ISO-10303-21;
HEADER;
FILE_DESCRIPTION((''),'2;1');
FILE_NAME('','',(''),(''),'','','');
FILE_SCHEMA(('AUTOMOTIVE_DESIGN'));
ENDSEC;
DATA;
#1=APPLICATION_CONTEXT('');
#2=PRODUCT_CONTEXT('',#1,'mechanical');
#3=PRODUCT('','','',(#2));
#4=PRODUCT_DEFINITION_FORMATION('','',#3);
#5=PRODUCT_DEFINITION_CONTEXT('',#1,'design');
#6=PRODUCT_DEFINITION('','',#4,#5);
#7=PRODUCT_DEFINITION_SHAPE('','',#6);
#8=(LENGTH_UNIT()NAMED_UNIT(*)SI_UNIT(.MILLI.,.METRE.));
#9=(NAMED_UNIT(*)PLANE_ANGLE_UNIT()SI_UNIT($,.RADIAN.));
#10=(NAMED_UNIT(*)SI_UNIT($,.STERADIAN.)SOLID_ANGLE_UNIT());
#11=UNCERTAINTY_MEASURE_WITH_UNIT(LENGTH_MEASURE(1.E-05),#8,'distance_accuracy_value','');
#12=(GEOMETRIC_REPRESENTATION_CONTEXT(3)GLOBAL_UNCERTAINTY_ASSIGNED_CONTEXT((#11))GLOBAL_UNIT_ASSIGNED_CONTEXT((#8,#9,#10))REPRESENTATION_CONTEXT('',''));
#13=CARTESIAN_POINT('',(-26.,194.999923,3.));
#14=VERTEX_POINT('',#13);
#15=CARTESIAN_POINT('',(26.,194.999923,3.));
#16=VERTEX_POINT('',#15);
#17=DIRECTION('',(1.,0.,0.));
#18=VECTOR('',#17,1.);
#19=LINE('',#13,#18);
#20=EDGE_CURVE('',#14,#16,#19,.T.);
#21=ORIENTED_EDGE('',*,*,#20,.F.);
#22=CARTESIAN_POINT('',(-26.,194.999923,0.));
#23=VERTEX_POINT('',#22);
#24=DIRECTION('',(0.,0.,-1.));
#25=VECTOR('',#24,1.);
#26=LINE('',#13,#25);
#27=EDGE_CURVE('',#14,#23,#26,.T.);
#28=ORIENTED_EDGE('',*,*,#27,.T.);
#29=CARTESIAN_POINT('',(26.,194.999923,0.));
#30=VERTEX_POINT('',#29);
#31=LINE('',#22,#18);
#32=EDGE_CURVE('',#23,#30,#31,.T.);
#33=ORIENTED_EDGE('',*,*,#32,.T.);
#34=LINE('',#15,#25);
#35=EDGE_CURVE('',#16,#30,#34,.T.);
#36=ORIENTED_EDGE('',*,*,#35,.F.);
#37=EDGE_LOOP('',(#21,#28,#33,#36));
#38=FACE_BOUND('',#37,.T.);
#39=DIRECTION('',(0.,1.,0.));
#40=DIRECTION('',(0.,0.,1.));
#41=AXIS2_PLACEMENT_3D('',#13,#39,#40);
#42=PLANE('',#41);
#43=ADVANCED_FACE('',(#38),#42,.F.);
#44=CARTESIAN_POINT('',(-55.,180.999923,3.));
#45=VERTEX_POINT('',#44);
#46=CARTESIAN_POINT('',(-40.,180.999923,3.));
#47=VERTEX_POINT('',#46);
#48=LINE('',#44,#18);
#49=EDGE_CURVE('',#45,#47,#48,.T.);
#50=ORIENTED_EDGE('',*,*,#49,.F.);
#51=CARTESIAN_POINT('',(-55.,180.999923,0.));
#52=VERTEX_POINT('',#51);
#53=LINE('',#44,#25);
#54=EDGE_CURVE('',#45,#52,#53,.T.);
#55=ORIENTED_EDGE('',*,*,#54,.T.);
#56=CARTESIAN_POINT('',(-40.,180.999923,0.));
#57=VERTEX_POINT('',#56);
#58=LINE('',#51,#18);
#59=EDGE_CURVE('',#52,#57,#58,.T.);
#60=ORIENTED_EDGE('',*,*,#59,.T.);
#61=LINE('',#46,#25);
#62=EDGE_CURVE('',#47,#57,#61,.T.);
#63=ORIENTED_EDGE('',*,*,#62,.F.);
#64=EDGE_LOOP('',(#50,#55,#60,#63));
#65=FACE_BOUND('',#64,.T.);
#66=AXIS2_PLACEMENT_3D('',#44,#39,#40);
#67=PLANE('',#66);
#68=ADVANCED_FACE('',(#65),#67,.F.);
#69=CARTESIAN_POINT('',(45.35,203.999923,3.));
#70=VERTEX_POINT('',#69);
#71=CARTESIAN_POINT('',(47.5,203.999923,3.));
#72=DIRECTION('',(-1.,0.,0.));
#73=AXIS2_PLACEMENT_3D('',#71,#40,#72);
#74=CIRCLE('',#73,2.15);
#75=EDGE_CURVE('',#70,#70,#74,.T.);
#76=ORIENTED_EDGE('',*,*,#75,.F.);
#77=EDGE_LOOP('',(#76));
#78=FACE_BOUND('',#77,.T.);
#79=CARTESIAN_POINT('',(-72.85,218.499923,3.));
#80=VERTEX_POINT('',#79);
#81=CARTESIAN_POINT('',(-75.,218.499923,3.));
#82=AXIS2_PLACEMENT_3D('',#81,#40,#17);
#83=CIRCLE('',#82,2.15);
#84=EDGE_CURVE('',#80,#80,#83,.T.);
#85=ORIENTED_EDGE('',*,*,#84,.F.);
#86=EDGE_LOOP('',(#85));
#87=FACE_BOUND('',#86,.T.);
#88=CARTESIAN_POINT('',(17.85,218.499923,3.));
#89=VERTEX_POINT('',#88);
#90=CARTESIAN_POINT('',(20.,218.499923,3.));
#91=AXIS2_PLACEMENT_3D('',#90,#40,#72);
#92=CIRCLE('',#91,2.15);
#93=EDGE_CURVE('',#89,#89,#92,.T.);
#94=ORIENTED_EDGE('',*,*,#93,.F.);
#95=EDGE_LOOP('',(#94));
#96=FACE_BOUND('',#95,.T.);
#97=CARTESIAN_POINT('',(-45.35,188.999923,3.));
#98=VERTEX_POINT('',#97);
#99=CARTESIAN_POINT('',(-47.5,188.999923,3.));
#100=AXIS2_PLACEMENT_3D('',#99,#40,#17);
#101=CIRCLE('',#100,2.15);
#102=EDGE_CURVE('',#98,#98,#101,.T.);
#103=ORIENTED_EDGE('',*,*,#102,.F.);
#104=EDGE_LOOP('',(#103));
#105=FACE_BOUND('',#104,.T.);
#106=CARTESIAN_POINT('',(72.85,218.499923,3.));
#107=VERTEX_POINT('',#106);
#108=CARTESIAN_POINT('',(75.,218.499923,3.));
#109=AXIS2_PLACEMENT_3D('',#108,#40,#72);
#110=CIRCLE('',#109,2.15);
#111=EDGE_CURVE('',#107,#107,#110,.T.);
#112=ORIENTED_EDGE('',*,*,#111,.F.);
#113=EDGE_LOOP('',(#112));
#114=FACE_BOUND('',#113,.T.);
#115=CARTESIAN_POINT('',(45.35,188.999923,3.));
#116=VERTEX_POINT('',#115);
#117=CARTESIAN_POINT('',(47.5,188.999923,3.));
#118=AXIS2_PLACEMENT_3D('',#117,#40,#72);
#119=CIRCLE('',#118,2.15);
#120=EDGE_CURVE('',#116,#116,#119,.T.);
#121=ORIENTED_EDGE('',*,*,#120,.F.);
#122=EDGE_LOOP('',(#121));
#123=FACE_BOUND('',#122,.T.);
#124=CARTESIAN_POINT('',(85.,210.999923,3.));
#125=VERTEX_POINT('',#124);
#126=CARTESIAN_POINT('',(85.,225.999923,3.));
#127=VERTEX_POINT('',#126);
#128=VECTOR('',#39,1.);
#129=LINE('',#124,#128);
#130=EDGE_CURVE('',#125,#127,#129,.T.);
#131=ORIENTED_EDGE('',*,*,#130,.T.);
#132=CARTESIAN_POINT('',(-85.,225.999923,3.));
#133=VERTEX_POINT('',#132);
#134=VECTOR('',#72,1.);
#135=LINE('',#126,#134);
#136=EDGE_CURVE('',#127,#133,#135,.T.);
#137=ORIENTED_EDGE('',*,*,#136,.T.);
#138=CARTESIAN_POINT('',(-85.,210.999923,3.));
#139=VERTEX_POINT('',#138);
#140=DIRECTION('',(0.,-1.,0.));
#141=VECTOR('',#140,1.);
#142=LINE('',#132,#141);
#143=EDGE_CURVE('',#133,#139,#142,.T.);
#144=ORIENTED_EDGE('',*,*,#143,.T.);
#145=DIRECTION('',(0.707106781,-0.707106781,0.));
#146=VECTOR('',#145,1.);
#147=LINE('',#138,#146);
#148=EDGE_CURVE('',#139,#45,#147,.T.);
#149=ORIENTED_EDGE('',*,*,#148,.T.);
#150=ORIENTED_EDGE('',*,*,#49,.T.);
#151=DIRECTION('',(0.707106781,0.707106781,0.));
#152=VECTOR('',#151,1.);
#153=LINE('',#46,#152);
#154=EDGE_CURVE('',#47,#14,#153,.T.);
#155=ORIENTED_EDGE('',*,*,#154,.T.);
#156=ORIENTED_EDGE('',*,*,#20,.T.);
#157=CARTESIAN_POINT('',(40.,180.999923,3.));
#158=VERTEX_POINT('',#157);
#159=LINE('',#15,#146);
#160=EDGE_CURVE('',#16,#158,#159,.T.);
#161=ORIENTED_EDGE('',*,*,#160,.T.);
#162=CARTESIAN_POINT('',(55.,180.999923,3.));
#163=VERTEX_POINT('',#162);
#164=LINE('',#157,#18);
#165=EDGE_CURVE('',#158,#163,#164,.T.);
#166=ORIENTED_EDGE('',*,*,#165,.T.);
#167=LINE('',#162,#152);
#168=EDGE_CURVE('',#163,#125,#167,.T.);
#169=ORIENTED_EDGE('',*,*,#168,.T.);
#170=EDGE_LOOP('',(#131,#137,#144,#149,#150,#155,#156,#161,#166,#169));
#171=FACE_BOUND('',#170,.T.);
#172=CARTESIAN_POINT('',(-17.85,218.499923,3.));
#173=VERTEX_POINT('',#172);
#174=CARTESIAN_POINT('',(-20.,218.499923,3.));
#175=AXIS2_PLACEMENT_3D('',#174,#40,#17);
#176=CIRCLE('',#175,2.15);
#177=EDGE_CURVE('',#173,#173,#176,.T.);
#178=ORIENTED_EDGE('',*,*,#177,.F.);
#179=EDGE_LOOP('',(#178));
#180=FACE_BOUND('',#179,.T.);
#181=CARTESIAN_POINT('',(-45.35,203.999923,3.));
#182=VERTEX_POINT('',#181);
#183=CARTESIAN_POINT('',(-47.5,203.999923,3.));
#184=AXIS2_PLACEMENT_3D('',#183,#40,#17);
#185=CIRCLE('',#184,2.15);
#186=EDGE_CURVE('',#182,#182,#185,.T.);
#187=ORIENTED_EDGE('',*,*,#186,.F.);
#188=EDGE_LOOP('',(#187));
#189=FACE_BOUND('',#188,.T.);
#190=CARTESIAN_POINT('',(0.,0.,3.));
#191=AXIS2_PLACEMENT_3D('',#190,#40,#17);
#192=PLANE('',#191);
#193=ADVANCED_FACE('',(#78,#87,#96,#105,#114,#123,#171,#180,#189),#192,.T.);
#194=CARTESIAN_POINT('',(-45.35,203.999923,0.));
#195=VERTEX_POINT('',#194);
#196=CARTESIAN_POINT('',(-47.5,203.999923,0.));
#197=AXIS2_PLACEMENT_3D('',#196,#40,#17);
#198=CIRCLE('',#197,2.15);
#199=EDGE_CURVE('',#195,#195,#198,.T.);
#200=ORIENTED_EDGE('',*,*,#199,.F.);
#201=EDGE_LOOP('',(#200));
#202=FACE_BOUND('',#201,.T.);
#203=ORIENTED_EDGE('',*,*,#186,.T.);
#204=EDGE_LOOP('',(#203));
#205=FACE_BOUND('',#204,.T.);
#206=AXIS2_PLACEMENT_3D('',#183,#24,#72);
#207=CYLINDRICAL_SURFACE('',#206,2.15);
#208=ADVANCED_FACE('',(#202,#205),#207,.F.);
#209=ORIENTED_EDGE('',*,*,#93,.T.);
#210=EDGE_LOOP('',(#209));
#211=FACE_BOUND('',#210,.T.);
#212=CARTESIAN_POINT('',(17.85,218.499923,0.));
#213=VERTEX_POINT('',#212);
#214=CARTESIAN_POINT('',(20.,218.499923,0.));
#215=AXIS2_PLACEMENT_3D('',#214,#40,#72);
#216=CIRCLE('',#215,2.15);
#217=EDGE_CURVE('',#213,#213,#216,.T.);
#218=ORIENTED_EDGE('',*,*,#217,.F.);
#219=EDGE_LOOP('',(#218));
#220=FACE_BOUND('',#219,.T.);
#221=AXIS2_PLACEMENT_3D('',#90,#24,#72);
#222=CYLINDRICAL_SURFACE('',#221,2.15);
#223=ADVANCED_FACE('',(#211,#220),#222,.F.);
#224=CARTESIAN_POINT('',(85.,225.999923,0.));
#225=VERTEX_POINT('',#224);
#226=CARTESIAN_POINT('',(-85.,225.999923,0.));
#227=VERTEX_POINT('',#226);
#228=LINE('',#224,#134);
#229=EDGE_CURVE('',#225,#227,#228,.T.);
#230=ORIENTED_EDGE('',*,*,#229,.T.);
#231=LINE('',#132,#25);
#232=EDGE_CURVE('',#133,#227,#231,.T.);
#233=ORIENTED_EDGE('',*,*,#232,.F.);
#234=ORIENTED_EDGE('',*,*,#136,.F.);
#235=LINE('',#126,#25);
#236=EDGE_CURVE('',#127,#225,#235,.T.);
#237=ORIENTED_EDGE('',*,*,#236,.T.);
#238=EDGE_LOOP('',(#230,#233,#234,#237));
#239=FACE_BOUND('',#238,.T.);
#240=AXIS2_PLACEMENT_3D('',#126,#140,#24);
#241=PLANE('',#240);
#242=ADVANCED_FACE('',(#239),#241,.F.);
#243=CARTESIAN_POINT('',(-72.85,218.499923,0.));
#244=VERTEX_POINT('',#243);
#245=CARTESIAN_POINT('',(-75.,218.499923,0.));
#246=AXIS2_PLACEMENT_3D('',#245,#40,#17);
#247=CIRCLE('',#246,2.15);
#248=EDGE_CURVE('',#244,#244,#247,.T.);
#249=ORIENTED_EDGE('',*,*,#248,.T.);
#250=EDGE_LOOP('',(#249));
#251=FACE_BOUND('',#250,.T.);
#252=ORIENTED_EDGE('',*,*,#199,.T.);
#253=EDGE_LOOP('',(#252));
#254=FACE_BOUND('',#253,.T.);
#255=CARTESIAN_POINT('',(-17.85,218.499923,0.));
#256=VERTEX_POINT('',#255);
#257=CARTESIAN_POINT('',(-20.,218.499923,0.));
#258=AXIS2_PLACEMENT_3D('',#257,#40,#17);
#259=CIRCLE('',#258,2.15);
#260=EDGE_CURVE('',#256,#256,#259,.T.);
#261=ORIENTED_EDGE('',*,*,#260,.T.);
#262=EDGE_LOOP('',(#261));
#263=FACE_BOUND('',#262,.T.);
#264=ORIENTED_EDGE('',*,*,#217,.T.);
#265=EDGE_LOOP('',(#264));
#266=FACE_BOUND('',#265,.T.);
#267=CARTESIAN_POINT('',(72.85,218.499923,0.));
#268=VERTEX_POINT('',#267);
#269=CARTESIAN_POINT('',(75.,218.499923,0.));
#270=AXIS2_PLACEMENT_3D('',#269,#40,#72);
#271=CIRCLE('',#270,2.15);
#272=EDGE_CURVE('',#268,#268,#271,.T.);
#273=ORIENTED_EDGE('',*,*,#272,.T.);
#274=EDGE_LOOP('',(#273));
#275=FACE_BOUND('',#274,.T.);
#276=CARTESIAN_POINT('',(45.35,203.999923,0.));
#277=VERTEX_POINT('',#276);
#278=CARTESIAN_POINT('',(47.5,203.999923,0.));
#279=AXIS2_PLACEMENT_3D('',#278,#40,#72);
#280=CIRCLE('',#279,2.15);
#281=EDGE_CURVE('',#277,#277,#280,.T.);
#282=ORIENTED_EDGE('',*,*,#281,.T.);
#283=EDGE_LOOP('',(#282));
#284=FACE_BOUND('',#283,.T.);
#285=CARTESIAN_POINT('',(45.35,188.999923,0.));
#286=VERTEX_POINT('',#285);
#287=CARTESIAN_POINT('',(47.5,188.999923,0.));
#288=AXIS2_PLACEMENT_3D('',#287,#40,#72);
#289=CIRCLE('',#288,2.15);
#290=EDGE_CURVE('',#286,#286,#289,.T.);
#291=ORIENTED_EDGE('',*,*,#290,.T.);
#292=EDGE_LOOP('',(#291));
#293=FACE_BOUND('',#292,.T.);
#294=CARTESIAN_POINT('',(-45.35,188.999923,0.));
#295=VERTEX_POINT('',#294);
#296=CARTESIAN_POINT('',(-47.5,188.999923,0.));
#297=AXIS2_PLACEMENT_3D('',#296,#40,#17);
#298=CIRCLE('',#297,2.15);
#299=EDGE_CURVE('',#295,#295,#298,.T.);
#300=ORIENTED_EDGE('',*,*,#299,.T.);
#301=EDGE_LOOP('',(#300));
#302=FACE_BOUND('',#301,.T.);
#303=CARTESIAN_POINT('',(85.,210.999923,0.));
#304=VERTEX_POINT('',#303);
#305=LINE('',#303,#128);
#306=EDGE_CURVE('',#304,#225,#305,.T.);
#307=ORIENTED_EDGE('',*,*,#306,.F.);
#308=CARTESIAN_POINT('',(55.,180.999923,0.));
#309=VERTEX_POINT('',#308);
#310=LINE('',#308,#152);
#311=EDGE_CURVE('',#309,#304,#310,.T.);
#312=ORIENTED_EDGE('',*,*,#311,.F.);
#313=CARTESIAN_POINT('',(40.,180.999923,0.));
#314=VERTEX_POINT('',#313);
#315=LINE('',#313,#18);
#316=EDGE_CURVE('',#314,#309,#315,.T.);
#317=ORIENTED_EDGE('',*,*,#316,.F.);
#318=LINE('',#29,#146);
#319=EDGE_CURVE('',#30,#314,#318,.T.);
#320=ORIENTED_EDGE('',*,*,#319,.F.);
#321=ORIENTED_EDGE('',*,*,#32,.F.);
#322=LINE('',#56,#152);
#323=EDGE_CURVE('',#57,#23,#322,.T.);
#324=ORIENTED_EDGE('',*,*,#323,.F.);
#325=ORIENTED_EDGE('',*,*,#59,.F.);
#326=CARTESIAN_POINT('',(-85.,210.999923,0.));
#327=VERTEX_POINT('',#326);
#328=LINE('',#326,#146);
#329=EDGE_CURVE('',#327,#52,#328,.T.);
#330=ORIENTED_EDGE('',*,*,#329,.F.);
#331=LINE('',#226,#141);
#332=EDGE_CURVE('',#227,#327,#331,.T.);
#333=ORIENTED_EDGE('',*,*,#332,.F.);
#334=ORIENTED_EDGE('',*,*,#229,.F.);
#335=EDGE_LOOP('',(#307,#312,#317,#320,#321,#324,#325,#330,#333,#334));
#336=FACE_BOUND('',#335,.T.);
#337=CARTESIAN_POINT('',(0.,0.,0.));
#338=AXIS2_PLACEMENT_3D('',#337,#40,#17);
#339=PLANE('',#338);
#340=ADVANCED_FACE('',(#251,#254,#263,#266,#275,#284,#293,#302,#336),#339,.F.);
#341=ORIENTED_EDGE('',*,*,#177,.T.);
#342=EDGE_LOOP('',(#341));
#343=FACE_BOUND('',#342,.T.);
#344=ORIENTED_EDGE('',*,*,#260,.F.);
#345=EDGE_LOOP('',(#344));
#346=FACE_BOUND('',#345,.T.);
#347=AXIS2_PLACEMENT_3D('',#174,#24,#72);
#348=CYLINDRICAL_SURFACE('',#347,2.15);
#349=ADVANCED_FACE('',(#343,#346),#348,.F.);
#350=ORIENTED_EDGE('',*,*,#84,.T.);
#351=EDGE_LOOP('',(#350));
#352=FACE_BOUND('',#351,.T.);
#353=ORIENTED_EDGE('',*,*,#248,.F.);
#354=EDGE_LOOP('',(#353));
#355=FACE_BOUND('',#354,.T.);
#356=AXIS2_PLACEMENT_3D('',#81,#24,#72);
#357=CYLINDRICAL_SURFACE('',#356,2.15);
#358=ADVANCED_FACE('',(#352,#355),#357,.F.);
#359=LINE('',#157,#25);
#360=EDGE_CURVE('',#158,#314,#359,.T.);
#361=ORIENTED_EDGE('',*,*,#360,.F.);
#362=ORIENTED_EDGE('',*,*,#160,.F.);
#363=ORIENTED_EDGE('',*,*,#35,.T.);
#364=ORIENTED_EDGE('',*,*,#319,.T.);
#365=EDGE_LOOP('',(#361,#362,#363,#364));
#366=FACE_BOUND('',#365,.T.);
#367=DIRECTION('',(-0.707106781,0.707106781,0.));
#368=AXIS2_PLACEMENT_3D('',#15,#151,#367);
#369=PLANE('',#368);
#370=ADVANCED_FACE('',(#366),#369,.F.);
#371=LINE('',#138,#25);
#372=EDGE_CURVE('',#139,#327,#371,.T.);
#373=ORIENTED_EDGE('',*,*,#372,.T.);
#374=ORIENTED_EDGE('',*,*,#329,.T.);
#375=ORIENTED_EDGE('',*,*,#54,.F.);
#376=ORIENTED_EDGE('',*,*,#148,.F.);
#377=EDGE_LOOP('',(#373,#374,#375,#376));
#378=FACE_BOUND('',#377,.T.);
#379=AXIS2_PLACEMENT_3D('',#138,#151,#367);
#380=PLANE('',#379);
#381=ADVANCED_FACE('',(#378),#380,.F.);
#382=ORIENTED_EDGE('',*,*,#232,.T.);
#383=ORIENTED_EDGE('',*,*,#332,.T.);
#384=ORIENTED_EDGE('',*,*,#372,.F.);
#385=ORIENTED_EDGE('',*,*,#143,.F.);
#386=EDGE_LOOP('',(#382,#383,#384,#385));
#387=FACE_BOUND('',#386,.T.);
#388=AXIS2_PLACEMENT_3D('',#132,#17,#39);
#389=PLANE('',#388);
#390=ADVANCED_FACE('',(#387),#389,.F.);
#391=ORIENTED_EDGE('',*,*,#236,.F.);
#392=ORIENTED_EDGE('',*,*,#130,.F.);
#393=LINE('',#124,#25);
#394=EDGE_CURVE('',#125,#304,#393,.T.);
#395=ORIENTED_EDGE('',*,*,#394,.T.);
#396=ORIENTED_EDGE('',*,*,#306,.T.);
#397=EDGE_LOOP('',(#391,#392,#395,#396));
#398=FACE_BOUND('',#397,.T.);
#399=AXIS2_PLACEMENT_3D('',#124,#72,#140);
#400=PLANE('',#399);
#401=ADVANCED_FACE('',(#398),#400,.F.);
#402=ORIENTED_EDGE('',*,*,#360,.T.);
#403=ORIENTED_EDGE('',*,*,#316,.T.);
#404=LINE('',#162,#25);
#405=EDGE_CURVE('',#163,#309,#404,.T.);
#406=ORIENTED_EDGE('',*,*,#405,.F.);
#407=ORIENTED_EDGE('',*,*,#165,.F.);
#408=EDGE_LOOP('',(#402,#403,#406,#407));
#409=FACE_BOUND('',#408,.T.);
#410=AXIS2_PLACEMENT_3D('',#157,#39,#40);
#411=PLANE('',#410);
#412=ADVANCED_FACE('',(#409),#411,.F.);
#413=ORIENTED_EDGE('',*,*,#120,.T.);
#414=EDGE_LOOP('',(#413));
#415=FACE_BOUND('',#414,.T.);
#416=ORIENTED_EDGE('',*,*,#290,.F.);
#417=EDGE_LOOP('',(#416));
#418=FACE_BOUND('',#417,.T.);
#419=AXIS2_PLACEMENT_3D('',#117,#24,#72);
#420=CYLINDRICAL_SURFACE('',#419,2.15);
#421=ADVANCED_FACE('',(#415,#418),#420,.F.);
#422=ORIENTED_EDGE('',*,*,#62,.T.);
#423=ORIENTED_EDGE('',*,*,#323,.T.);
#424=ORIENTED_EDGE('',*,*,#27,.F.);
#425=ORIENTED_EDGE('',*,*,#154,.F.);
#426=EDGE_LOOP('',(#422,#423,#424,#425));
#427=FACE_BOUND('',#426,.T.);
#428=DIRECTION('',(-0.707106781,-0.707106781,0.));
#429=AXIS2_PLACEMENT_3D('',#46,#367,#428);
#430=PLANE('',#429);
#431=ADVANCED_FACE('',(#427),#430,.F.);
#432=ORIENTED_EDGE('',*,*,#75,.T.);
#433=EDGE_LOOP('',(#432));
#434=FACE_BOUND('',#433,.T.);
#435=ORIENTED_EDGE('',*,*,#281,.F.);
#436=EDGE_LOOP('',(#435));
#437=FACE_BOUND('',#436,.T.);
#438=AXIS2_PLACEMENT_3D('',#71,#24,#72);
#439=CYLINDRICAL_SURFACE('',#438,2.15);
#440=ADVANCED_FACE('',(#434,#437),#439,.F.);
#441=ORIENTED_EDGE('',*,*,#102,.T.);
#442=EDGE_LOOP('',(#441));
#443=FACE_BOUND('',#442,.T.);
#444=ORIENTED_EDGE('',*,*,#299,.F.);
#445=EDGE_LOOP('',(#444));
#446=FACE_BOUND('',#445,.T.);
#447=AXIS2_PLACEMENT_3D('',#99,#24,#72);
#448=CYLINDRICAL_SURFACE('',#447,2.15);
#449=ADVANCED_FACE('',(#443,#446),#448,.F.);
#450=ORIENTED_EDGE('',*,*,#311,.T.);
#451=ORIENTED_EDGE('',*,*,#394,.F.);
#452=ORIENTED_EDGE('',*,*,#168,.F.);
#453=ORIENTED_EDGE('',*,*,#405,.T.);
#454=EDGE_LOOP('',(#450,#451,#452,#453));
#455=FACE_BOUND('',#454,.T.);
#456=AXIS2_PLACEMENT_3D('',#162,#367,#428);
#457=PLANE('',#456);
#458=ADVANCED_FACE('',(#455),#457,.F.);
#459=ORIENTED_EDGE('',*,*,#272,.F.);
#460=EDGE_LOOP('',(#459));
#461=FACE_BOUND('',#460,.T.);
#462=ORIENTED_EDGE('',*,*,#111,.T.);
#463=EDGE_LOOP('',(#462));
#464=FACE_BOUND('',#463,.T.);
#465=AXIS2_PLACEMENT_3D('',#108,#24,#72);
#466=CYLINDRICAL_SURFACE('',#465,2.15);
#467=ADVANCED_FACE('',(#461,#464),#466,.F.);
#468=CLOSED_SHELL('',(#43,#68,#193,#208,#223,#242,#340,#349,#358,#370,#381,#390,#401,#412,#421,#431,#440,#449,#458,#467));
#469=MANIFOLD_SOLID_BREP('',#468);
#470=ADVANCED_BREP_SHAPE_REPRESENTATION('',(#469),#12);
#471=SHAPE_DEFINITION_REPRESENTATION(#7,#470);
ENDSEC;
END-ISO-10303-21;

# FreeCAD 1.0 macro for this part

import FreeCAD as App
import Part
import Sketcher
from FreeCAD import Vector
Q = App.Units.Quantity

doc = App.newDocument("Part")
params = doc.addObject("Spreadsheet::Sheet", "Params")
for row, (alias, value) in enumerate([
    ("sketch1_diameter", "4.3 mm"),
    ("sketch1_width", "15 mm"),
    ("sketch1_width2", "52 mm"),
    ("sketch1_width3", "170 mm"),
    ("pad1_length", "3 mm"),
], start=1):
    params.set(f"A{row}", alias)
    params.set(f"B{row}", "=" + value)
    params.setAlias(f"B{row}", alias)

body = doc.addObject("PartDesign::Body", "Body")

# Sketch on XY plane
sketch1 = body.newObject("Sketcher::SketchObject", "Sketch")
sketch1.AttachmentSupport = (doc.getObject("XY_Plane"), [""])
sketch1.MapMode = "FlatFace"
sketch1.addGeometry([
    Part.LineSegment(Vector(-85, 226, 0), Vector(-85, 211, 0)),  # 0
    Part.LineSegment(Vector(-85, 211, 0), Vector(-55, 181, 0)),  # 1
    Part.LineSegment(Vector(-55, 181, 0), Vector(-40, 181, 0)),  # 2
    Part.LineSegment(Vector(-40, 181, 0), Vector(-26, 195, 0)),  # 3
    Part.LineSegment(Vector(-26, 195, 0), Vector(26, 195, 0)),  # 4
    Part.LineSegment(Vector(26, 195, 0), Vector(40, 181, 0)),  # 5
    Part.LineSegment(Vector(40, 181, 0), Vector(55, 181, 0)),  # 6
    Part.LineSegment(Vector(55, 181, 0), Vector(85, 211, 0)),  # 7
    Part.LineSegment(Vector(85, 211, 0), Vector(85, 226, 0)),  # 8
    Part.LineSegment(Vector(85, 226, 0), Vector(-85, 226, 0)),  # 9
    Part.Circle(Vector(-47.5, 189, 0), Vector(0, 0, 1), 2.1),  # 10
    Part.Circle(Vector(47.5, 189, 0), Vector(0, 0, 1), 2.1),  # 11
    Part.Circle(Vector(-47.5, 204, 0), Vector(0, 0, 1), 2.1),  # 12
    Part.Circle(Vector(-75, 218.5, 0), Vector(0, 0, 1), 2.1),  # 13
    Part.Circle(Vector(-20, 218.5, 0), Vector(0, 0, 1), 2.1),  # 14
    Part.Circle(Vector(47.5, 204, 0), Vector(0, 0, 1), 2.1),  # 15
    Part.Circle(Vector(20, 218.5, 0), Vector(0, 0, 1), 2.1),  # 16
    Part.Circle(Vector(75, 218.5, 0), Vector(0, 0, 1), 2.1),  # 17
], False)
sketch1.addConstraint([
    Sketcher.Constraint("Coincident", 0, 2, 1, 1),
    Sketcher.Constraint("Coincident", 1, 2, 2, 1),
    Sketcher.Constraint("Coincident", 2, 2, 3, 1),
    Sketcher.Constraint("Coincident", 3, 2, 4, 1),
    Sketcher.Constraint("Coincident", 4, 2, 5, 1),
    Sketcher.Constraint("Coincident", 5, 2, 6, 1),
    Sketcher.Constraint("Coincident", 6, 2, 7, 1),
    Sketcher.Constraint("Coincident", 7, 2, 8, 1),
    Sketcher.Constraint("Coincident", 8, 2, 9, 1),
    Sketcher.Constraint("Coincident", 9, 2, 0, 1),
    Sketcher.Constraint("Vertical", 0),
    Sketcher.Constraint("Horizontal", 2),
    Sketcher.Constraint("Horizontal", 4),
    Sketcher.Constraint("Horizontal", 6),
    Sketcher.Constraint("Vertical", 8),
    Sketcher.Constraint("Horizontal", 9),
    Sketcher.Constraint("Equal", 10, 11),
    Sketcher.Constraint("Equal", 11, 12),
    Sketcher.Constraint("Equal", 12, 13),
    Sketcher.Constraint("Equal", 13, 14),
    Sketcher.Constraint("Equal", 14, 15),
    Sketcher.Constraint("Equal", 15, 16),
    Sketcher.Constraint("Equal", 16, 17),
    Sketcher.Constraint("Symmetric", 10, 3, 11, 3, -2),
    Sketcher.Constraint("Symmetric", 12, 3, 15, 3, -2),
    Sketcher.Constraint("Symmetric", 14, 3, 16, 3, -2),
    Sketcher.Constraint("Symmetric", 13, 3, 17, 3, -2),
    Sketcher.Constraint("Symmetric", 2, 2, 5, 2, -2),
    Sketcher.Constraint("Symmetric", 0, 2, 7, 2, -2),
    Sketcher.Constraint("Perpendicular", 1, 3),
    Sketcher.Constraint("Perpendicular", 3, 5),
    Sketcher.Constraint("Perpendicular", 5, 7),
    Sketcher.Constraint("Horizontal", 13, 3, 14, 3),
    Sketcher.Constraint("Vertical", 10, 3, 12, 3),
    Sketcher.Constraint("Equal", 2, 6),
    Sketcher.Constraint("Equal", 6, 0),
    Sketcher.Constraint("Diameter", 10, Q("4.3 mm")),
    Sketcher.Constraint("DistanceX", 2, 1, 2, 2, Q("15 mm")),
    Sketcher.Constraint("DistanceX", 4, 1, 4, 2, Q("52 mm")),
    Sketcher.Constraint("DistanceX", 9, 2, 9, 1, Q("170 mm")),
    Sketcher.Constraint("DistanceX", 13, 3, -1, 1, Q("75 mm")),
    Sketcher.Constraint("DistanceX", 14, 3, -1, 1, Q("20 mm")),
    Sketcher.Constraint("DistanceX", 1, 2, -1, 1, Q("55 mm")),
    Sketcher.Constraint("DistanceX", 10, 3, 11, 3, Q("95 mm")),
    Sketcher.Constraint("DistanceY", 10, 3, 12, 3, Q("15 mm")),
    Sketcher.Constraint("DistanceY", 12, 3, 0, 2, Q("7 mm")),
    Sketcher.Constraint("DistanceY", 12, 3, 13, 3, Q("14.5 mm")),
    Sketcher.Constraint("DistanceY", -1, 1, 10, 3, Q("188.999923 mm")),
])
sketch1.setExpression("Constraints[36]", "Params.sketch1_diameter")
sketch1.setExpression("Constraints[37]", "Params.sketch1_width")
sketch1.setExpression("Constraints[38]", "Params.sketch1_width2")
sketch1.setExpression("Constraints[39]", "Params.sketch1_width3")
pad1 = body.newObject("PartDesign::Pad", "Pad")
pad1.Profile = sketch1
pad1.setExpression("Length", "Params.pad1_length")

doc.recompute()
